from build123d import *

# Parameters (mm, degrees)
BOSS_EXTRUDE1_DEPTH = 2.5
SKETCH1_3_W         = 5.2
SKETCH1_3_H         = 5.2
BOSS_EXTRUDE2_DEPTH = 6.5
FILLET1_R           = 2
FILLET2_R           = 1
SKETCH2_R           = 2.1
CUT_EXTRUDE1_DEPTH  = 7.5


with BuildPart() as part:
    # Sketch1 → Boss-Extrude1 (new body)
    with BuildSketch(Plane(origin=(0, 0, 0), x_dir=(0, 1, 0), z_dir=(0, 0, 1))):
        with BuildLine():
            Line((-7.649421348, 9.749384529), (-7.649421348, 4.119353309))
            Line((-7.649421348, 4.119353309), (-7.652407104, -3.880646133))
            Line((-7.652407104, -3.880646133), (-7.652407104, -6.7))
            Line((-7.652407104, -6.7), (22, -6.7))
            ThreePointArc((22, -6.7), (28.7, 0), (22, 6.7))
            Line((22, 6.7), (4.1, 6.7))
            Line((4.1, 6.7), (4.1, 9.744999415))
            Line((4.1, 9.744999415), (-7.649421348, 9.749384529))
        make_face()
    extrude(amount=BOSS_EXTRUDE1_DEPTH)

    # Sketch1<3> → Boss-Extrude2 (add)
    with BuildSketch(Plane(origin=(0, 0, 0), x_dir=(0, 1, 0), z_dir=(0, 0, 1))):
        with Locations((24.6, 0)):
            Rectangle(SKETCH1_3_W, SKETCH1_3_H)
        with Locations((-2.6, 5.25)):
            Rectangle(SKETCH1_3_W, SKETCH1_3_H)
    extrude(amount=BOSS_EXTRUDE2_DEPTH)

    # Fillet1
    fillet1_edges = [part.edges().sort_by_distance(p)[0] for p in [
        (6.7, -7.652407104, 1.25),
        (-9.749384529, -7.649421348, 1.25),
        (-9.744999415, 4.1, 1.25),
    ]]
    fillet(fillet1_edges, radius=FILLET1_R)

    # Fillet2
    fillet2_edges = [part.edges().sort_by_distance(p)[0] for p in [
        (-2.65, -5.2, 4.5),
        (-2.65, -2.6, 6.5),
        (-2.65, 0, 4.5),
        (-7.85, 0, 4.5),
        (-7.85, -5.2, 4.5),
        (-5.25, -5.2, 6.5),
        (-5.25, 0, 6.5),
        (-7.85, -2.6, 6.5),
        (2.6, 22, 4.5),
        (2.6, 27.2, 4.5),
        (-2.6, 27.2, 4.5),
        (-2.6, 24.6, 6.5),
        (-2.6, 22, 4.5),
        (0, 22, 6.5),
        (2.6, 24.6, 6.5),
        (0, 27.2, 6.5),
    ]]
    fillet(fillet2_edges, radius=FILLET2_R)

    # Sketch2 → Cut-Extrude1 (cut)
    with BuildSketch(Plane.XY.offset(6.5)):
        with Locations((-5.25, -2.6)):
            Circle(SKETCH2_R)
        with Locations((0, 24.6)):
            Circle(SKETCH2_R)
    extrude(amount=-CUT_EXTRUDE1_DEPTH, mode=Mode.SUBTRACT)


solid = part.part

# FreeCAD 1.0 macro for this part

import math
import FreeCAD as App
import Part
import Sketcher
Q = App.Units.Quantity


def edges_at(feature, points):
    """Names of the edges that pass closest to the given points."""
    edges = feature.Shape.Edges
    near = lambda p: min(range(len(edges)), key=lambda i: edges[i].distToShape(Part.Vertex(*p))[0])
    return sorted({f"Edge{near(p) + 1}" for p in points})


def add_polygon(sketch, points):
    """Adds a closed chain of lines whose ends are joined by coincident constraints."""
    first, n = sketch.GeometryCount, len(points)
    for a, b in zip(points, points[1:] + points[:1]):
        sketch.addGeometry(Part.LineSegment(App.Vector(*a, 0), App.Vector(*b, 0)), False)
    for i in range(n):
        sketch.addConstraint(Sketcher.Constraint("Coincident", first + i, 2, first + (i + 1) % n, 1))

doc = App.newDocument("Part")
body = doc.addObject("PartDesign::Body", "Body")

# Sketch on XY plane
sketch1 = body.newObject("Sketcher::SketchObject", "Sketch")
sketch1.AttachmentSupport = (doc.getObject("XY_Plane"), [""])
sketch1.MapMode = "FlatFace"
sketch1.addGeometry(Part.LineSegment(App.Vector(-9.749385, -7.649421, 0), App.Vector(-4.119353, -7.649421, 0)), False)
sketch1.addGeometry(Part.LineSegment(App.Vector(-4.119353, -7.649421, 0), App.Vector(3.880646, -7.652407, 0)), False)
sketch1.addGeometry(Part.LineSegment(App.Vector(3.880646, -7.652407, 0), App.Vector(6.7, -7.652407, 0)), False)
sketch1.addGeometry(Part.LineSegment(App.Vector(6.7, -7.652407, 0), App.Vector(6.7, 22, 0)), False)
sketch1.addGeometry(Part.ArcOfCircle(Part.Circle(App.Vector(0, 22, 0), App.Vector(0, 0, 1), 6.7), math.radians(0), math.radians(180)), False)
sketch1.addGeometry(Part.LineSegment(App.Vector(-6.7, 22, 0), App.Vector(-6.7, 4.1, 0)), False)
sketch1.addGeometry(Part.LineSegment(App.Vector(-6.7, 4.1, 0), App.Vector(-9.744999, 4.1, 0)), False)
sketch1.addGeometry(Part.LineSegment(App.Vector(-9.744999, 4.1, 0), App.Vector(-9.749385, -7.649421, 0)), False)
sketch1.addConstraint(Sketcher.Constraint("Coincident", 0, 2, 1, 1))
sketch1.addConstraint(Sketcher.Constraint("Coincident", 1, 2, 2, 1))
sketch1.addConstraint(Sketcher.Constraint("Coincident", 2, 2, 3, 1))
sketch1.addConstraint(Sketcher.Constraint("Tangent", 3, 2, 4, 1))
sketch1.addConstraint(Sketcher.Constraint("Tangent", 4, 2, 5, 1))
sketch1.addConstraint(Sketcher.Constraint("Coincident", 5, 2, 6, 1))
sketch1.addConstraint(Sketcher.Constraint("Coincident", 6, 2, 7, 1))
sketch1.addConstraint(Sketcher.Constraint("Coincident", 7, 2, 0, 1))
sketch1.addConstraint(Sketcher.Constraint("Horizontal", 0))
sketch1.addConstraint(Sketcher.Constraint("Horizontal", 2))
sketch1.addConstraint(Sketcher.Constraint("Vertical", 3))
sketch1.addConstraint(Sketcher.Constraint("Vertical", 5))
sketch1.addConstraint(Sketcher.Constraint("Horizontal", 6))
sketch1.addConstraint(Sketcher.Constraint("PointOnObject", 4, 3, -2))
sketch1.addConstraint(Sketcher.Constraint("Perpendicular", 1, 7))
sketch1.addConstraint(Sketcher.Constraint("Radius", 4, Q("6.7 mm")))
sketch1.addConstraint(Sketcher.Constraint("Distance", 1, Q("8 mm")))
sketch1.addConstraint(Sketcher.Constraint("DistanceY", 5, 2, 5, 1, Q("17.9 mm")))
sketch1.addConstraint(Sketcher.Constraint("DistanceY", -1, 1, 4, 3, Q("22 mm")))
sketch1.addConstraint(Sketcher.Constraint("DistanceX", 6, 2, 6, 1, Q("3.044999 mm")))
sketch1.addConstraint(Sketcher.Constraint("DistanceX", 0, 1, 0, 2, Q("5.630031 mm")))
sketch1.addConstraint(Sketcher.Constraint("DistanceX", 2, 1, 2, 2, Q("2.819354 mm")))
sketch1.addConstraint(Sketcher.Constraint("DistanceY", 3, 1, 3, 2, Q("29.652407 mm")))
pad1 = body.newObject("PartDesign::Pad", "Pad")
pad1.Profile = sketch1
pad1.Length = 2.5

# Sketch on XY plane
sketch2 = body.newObject("Sketcher::SketchObject", "Sketch001")
sketch2.AttachmentSupport = (doc.getObject("XY_Plane"), [""])
sketch2.MapMode = "FlatFace"
add_polygon(sketch2, [(-2.6, 22), (2.6, 22), (2.6, 27.2), (-2.6, 27.2)])  # lines 0-3
add_polygon(sketch2, [(-7.85, -5.2), (-2.65, -5.2), (-2.65, 0), (-7.85, 0)])  # lines 4-7
sketch2.addConstraint(Sketcher.Constraint("Horizontal", 0))
sketch2.addConstraint(Sketcher.Constraint("Vertical", 1))
sketch2.addConstraint(Sketcher.Constraint("Horizontal", 2))
sketch2.addConstraint(Sketcher.Constraint("Vertical", 3))
sketch2.addConstraint(Sketcher.Constraint("Horizontal", 4))
sketch2.addConstraint(Sketcher.Constraint("Vertical", 5))
sketch2.addConstraint(Sketcher.Constraint("Horizontal", 6))
sketch2.addConstraint(Sketcher.Constraint("Vertical", 7))
sketch2.addConstraint(Sketcher.Constraint("PointOnObject", 5, 2, -1))
sketch2.addConstraint(Sketcher.Constraint("Equal", 2, 4))
sketch2.addConstraint(Sketcher.Constraint("Equal", 6, 1))
sketch2.addConstraint(Sketcher.Constraint("Equal", 3, 5))
sketch2.addConstraint(Sketcher.Constraint("DistanceX", 0, 1, 0, 2, Q("5.2 mm")))
sketch2.addConstraint(Sketcher.Constraint("DistanceY", -1, 1, 0, 2, Q("22 mm")))
sketch2.addConstraint(Sketcher.Constraint("DistanceX", -1, 1, 0, 2, Q("2.6 mm")))
sketch2.addConstraint(Sketcher.Constraint("DistanceX", 4, 2, -1, 1, Q("2.65 mm")))
pad2 = body.newObject("PartDesign::Pad", "Pad001")
pad2.Profile = sketch2
pad2.Length = 6.5
doc.recompute()

fillet = body.newObject("PartDesign::Fillet", "Fillet")
fillet.Base = (pad2, edges_at(pad2, [(6.7, -7.652, 1.25), (-9.749, -7.649, 1.25), (-9.745, 4.1, 1.25)]))
fillet.Radius = 2
doc.recompute()

fillet2 = body.newObject("PartDesign::Fillet", "Fillet001")
fillet2.Base = (fillet, edges_at(fillet, [
    (-2.65, -5.2, 4.5),
    (-2.65, -2.6, 6.5),
    (-2.65, 0, 4.5),
    (-7.85, 0, 4.5),
    (-7.85, -5.2, 4.5),
    (-5.25, -5.2, 6.5),
    (-5.25, 0, 6.5),
    (-7.85, -2.6, 6.5),
    (2.6, 22, 4.5),
    (2.6, 27.2, 4.5),
    (-2.6, 27.2, 4.5),
    (-2.6, 24.6, 6.5),
    (-2.6, 22, 4.5),
    (0, 22, 6.5),
    (2.6, 24.6, 6.5),
    (0, 27.2, 6.5),
]))
fillet2.Radius = 1

# Sketch on XY plane
sketch3 = body.newObject("Sketcher::SketchObject", "Sketch002")
sketch3.AttachmentSupport = (doc.getObject("XY_Plane"), [""])
sketch3.MapMode = "FlatFace"
sketch3.AttachmentOffset = App.Placement(App.Vector(0, 0, 6.5), App.Rotation())
sketch3.addGeometry(Part.Circle(App.Vector(-5.25, -2.6, 0), App.Vector(0, 0, 1), 2.1), False)
sketch3.addGeometry(Part.Circle(App.Vector(0, 24.6, 0), App.Vector(0, 0, 1), 2.1), False)
sketch3.addConstraint(Sketcher.Constraint("Equal", 0, 1))
sketch3.addConstraint(Sketcher.Constraint("PointOnObject", 1, 3, -2))
sketch3.addConstraint(Sketcher.Constraint("Diameter", 0, Q("4.2 mm")))
sketch3.addConstraint(Sketcher.Constraint("DistanceY", 0, 3, -1, 1, Q("2.6 mm")))
sketch3.addConstraint(Sketcher.Constraint("DistanceY", -1, 1, 1, 3, Q("24.6 mm")))
sketch3.addConstraint(Sketcher.Constraint("DistanceX", 0, 3, -1, 1, Q("5.25 mm")))
pocket1 = body.newObject("PartDesign::Pocket", "Pocket")
pocket1.Profile = sketch3
pocket1.Length = 7.5

doc.recompute()
